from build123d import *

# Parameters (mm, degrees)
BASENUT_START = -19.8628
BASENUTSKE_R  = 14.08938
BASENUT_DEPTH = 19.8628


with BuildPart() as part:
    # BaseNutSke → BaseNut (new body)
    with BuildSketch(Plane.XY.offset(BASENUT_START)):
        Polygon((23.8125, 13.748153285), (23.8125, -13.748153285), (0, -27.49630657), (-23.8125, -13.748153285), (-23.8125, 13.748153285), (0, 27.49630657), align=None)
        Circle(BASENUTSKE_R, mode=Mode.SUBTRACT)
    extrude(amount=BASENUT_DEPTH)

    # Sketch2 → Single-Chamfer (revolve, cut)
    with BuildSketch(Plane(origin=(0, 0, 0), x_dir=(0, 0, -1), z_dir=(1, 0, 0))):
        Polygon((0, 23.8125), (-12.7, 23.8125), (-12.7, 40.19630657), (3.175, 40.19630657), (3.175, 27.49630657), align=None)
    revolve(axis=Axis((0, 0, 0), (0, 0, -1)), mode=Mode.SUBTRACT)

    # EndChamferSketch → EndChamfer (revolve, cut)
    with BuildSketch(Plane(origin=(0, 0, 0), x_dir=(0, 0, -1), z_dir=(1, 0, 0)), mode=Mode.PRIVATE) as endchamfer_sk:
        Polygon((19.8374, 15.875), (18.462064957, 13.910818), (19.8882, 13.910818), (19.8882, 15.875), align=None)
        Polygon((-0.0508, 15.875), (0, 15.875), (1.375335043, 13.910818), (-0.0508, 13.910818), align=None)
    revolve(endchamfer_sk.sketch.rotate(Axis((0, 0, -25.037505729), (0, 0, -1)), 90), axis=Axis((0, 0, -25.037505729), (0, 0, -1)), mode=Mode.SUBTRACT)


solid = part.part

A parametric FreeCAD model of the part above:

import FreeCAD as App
import Part
import Sketcher
Q = App.Units.Quantity


def add_polygon(sketch, points):
    """Adds a closed chain of lines whose ends are joined by coincident constraints."""
    first, n = sketch.GeometryCount, len(points)
    for a, b in zip(points, points[1:] + points[:1]):
        sketch.addGeometry(Part.LineSegment(App.Vector(*a, 0), App.Vector(*b, 0)), False)
    for i in range(n):
        sketch.addConstraint(Sketcher.Constraint("Coincident", first + i, 2, first + (i + 1) % n, 1))

doc = App.newDocument("Part")
body = doc.addObject("PartDesign::Body", "Body")

# Sketch on XY plane
sketch1 = body.newObject("Sketcher::SketchObject", "Sketch")
sketch1.AttachmentSupport = (doc.getObject("XY_Plane"), [""])
sketch1.MapMode = "FlatFace"
sketch1.AttachmentOffset = App.Placement(App.Vector(0, 0, -0.782 * 25.4), App.Rotation())
add_polygon(sketch1, [(23.8125, -13.748153), (23.8125, 13.748153), (0, 27.496307), (-23.8125, 13.748153), (-23.8125, -13.748153), (0, -27.496307)])  # lines 0-5
sketch1.addGeometry(Part.Circle(App.Vector(0, 0, 0), App.Vector(0, 0, 1), 14.08938), False)  # 6
sketch1.addConstraint(Sketcher.Constraint("Vertical", 0))
sketch1.addConstraint(Sketcher.Constraint("Vertical", 3))
sketch1.addConstraint(Sketcher.Constraint("Coincident", 6, 3, -1, 1))
sketch1.addConstraint(Sketcher.Constraint("Symmetric", 0, 2, 3, 2, -1, 1))
sketch1.addConstraint(Sketcher.Constraint("Symmetric", 1, 2, 4, 2, -1, 1))
sketch1.addConstraint(Sketcher.Constraint("PointOnObject", 1, 2, -2))
sketch1.addConstraint(Sketcher.Constraint("Parallel", 2, 5))
sketch1.addConstraint(Sketcher.Constraint("Horizontal", 0, 2, 2, 2))
sketch1.addConstraint(Sketcher.Constraint("Angle", 1, Q("150 deg")))
sketch1.addConstraint(Sketcher.Constraint("Diameter", 6, Q("1.1094 in")))
sketch1.addConstraint(Sketcher.Constraint("DistanceX", -1, 1, 0, 2, Q("0.9375 in")))
sketch1.addConstraint(Sketcher.Constraint("DistanceY", 0, 1, 0, 2, 27.496307))
pad1 = body.newObject("PartDesign::Pad", "Pad")
pad1.Profile = sketch1
pad1.Length = Q("0.782 in")

# Sketch on YZ plane
sketch2 = body.newObject("Sketcher::SketchObject", "Sketch001")
sketch2.AttachmentSupport = (doc.getObject("YZ_Plane"), [""])
sketch2.MapMode = "FlatFace"
add_polygon(sketch2, [(23.8125, 12.7), (23.8125, 0), (27.496307, -3.175), (40.196307, -3.175), (40.196307, 12.7)])  # lines 0-4
sketch2.addConstraint(Sketcher.Constraint("Vertical", 0))
sketch2.addConstraint(Sketcher.Constraint("Horizontal", 2))
sketch2.addConstraint(Sketcher.Constraint("Vertical", 3))
sketch2.addConstraint(Sketcher.Constraint("Horizontal", 4))
sketch2.addConstraint(Sketcher.Constraint("PointOnObject", 0, 2, -1))
sketch2.addConstraint(Sketcher.Constraint("Equal", 2, 0))
sketch2.addConstraint(Sketcher.Constraint("DistanceX", 2, 1, 2, 2, Q("0.5 in")))
sketch2.addConstraint(Sketcher.Constraint("DistanceY", 3, 1, 3, 2, Q("0.625 in")))
sketch2.addConstraint(Sketcher.Constraint("DistanceX", -1, 1, 0, 2, Q("0.9375 in")))
sketch2.addConstraint(Sketcher.Constraint("DistanceX", 4, 2, 4, 1, 16.383807))
groove = body.newObject("PartDesign::Groove", "Groove")
groove.Profile = sketch2
groove.ReferenceAxis = (sketch2, ["V_Axis"])
groove.Angle = 360

# Sketch on YZ plane
sketch3 = body.newObject("Sketcher::SketchObject", "Sketch002")
sketch3.AttachmentSupport = (doc.getObject("YZ_Plane"), [""])
sketch3.MapMode = "FlatFace"
add_polygon(sketch3, [(15.875, -19.8374), (13.910818, -18.462065), (13.910818, -19.8882), (15.875, -19.8882)])  # lines 0-3
add_polygon(sketch3, [(15.875, 0), (15.875, 0.0508), (13.910818, 0.0508), (13.910818, -1.375335)])  # lines 4-7
sketch3.addConstraint(Sketcher.Constraint("Vertical", 1))
sketch3.addConstraint(Sketcher.Constraint("Horizontal", 2))
sketch3.addConstraint(Sketcher.Constraint("Vertical", 3))
sketch3.addConstraint(Sketcher.Constraint("Vertical", 4))
sketch3.addConstraint(Sketcher.Constraint("Horizontal", 5))
sketch3.addConstraint(Sketcher.Constraint("Vertical", 6))
sketch3.addConstraint(Sketcher.Constraint("PointOnObject", 7, 2, -1))
sketch3.addConstraint(Sketcher.Constraint("Vertical", 3, 2, 4, 2))
sketch3.addConstraint(Sketcher.Constraint("Vertical", 1, 2, 5, 2))
sketch3.addConstraint(Sketcher.Constraint("Equal", 3, 4))
sketch3.addConstraint(Sketcher.Constraint("Equal", 1, 6))
sketch3.addConstraint(Sketcher.Constraint("Angle", 0, Q("145 deg")))
sketch3.addConstraint(Sketcher.Constraint("DistanceY", 3, 1, 3, 2, Q("0.002 in")))
sketch3.addConstraint(Sketcher.Constraint("DistanceY", 1, 2, -1, 1, Q("0.783 in")))
sketch3.addConstraint(Sketcher.Constraint("DistanceX", -1, 1, 2, 2, Q("0.625 in")))
sketch3.addConstraint(Sketcher.Constraint("DistanceX", 2, 1, 2, 2, 1.964182))
groove2 = body.newObject("PartDesign::Groove", "Groove001")
groove2.Profile = sketch3
groove2.ReferenceAxis = (sketch3, ["V_Axis"])
groove2.Angle = 360

doc.recompute()
